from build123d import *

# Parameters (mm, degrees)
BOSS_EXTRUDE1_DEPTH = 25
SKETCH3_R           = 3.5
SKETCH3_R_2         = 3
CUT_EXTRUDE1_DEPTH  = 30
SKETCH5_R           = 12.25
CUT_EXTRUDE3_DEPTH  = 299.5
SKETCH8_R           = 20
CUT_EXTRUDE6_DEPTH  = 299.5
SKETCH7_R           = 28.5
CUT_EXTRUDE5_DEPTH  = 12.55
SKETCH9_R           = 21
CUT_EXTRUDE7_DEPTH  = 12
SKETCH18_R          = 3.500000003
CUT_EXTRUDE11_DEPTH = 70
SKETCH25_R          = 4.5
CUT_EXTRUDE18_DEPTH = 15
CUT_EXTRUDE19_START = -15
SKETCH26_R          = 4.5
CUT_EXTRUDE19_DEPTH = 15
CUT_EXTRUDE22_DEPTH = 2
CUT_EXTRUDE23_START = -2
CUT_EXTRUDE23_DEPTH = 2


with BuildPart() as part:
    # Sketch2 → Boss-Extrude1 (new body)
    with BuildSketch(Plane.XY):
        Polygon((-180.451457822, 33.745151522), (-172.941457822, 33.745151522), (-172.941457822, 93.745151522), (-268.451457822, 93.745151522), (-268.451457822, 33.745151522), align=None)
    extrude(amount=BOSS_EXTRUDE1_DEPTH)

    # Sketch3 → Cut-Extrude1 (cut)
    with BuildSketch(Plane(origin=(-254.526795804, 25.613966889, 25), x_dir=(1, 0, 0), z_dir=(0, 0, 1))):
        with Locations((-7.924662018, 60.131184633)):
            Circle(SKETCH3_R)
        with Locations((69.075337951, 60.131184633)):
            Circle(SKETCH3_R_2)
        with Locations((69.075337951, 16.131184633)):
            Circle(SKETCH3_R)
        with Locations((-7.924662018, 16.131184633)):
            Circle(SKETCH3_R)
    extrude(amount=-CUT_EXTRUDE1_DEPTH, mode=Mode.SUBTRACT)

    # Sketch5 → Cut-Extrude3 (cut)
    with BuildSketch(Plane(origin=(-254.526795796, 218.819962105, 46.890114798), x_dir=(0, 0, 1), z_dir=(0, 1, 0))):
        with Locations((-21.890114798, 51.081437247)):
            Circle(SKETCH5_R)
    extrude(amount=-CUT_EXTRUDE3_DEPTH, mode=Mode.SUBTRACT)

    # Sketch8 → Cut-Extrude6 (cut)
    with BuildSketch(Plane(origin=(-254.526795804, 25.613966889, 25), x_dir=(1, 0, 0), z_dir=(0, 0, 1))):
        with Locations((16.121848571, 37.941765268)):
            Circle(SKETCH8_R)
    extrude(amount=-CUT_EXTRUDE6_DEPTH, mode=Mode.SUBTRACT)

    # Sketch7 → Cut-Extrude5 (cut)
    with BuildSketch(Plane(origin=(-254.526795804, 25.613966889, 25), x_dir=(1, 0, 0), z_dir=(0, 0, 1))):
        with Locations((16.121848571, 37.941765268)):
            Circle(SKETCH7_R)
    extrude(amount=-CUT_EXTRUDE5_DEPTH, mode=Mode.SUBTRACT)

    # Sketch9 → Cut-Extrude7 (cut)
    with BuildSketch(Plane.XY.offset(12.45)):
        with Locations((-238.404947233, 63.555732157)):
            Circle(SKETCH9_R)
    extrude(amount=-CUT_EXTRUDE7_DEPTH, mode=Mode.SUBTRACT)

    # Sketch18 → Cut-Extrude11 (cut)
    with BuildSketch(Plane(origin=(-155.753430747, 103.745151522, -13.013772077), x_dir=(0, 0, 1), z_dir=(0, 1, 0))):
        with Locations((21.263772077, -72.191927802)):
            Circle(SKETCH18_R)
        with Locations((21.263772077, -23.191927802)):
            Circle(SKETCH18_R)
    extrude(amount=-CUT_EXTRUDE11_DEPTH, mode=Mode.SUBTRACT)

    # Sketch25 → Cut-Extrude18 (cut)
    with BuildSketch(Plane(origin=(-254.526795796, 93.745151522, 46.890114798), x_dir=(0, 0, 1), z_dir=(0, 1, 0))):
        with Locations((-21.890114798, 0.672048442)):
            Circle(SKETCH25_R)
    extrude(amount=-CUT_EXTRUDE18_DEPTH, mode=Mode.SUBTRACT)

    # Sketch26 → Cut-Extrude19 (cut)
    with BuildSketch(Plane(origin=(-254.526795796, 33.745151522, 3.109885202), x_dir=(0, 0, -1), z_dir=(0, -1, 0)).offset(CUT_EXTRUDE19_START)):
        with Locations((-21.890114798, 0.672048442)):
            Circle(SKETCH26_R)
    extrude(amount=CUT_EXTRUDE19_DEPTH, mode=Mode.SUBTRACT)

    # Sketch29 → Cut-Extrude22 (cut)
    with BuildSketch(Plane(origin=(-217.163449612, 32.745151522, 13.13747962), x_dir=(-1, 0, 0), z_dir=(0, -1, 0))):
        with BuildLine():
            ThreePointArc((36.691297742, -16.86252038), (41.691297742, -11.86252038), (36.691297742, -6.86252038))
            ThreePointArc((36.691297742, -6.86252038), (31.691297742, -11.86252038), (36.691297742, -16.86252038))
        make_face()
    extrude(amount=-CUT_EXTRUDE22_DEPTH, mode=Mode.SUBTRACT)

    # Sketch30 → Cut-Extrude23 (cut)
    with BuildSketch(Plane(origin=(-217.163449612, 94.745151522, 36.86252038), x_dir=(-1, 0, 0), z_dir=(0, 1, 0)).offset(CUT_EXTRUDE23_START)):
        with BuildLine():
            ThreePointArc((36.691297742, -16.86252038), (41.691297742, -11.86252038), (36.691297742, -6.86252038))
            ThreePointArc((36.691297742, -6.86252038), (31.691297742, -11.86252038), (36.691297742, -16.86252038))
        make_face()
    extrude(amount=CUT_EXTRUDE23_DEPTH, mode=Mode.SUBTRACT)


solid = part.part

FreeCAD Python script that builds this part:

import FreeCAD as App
import Part
import Sketcher

V = App.Vector
Q = App.Units.Quantity

doc = App.newDocument("Part")
body = doc.addObject("PartDesign::Body", "Body")

sketch1 = body.newObject("Sketcher::SketchObject", "Sketch")
sketch1.AttachmentSupport = (doc.getObject("XY_Plane"), [""])
sketch1.MapMode = "FlatFace"
sketch1.addGeometry(Part.LineSegment(V(-173, 34, 0), V(-173, 94, 0)), False)
sketch1.addGeometry(Part.LineSegment(V(-173, 94, 0), V(-268, 94, 0)), False)
sketch1.addGeometry(Part.LineSegment(V(-268, 94, 0), V(-268, 34, 0)), False)
sketch1.addGeometry(Part.LineSegment(V(-268, 34, 0), V(-173, 34, 0)), False)
sketch1.addConstraint(Sketcher.Constraint("Coincident", 0, 2, 1, 1))
sketch1.addConstraint(Sketcher.Constraint("Coincident", 1, 2, 2, 1))
sketch1.addConstraint(Sketcher.Constraint("Coincident", 2, 2, 3, 1))
sketch1.addConstraint(Sketcher.Constraint("Coincident", 3, 2, 0, 1))
sketch1.addConstraint(Sketcher.Constraint("Vertical", 0))
sketch1.addConstraint(Sketcher.Constraint("Horizontal", 1))
sketch1.addConstraint(Sketcher.Constraint("Vertical", 2))
sketch1.addConstraint(Sketcher.Constraint("Horizontal", 3))
sketch1.addConstraint(Sketcher.Constraint("DistanceY", 0, 1, 0, 2, Q("60 mm")))
sketch1.addConstraint(Sketcher.Constraint("DistanceX", 1, 2, 1, 1, Q("95.51 mm")))
sketch1.addConstraint(Sketcher.Constraint("DistanceY", -1, 1, 0, 2, Q("93.745152 mm")))
sketch1.addConstraint(Sketcher.Constraint("DistanceX", 0, 2, -1, 1, Q("172.941458 mm")))
pad1 = body.newObject("PartDesign::Pad", "Pad")
pad1.Profile = sketch1
pad1.Length = 25

sketch2 = body.newObject("Sketcher::SketchObject", "Sketch001")
sketch2.AttachmentSupport = (doc.getObject("XY_Plane"), [""])
sketch2.MapMode = "FlatFace"
sketch2.AttachmentOffset = App.Placement(V(0, 0, 25), App.Rotation())
sketch2.addGeometry(Part.Circle(V(-262.5, 85.7, 0), V(0, 0, 1), 3.5), False)
sketch2.addGeometry(Part.Circle(V(-185.5, 85.7, 0), V(0, 0, 1), 3), False)
sketch2.addGeometry(Part.Circle(V(-185.5, 41.7, 0), V(0, 0, 1), 3.5), False)
sketch2.addGeometry(Part.Circle(V(-262.5, 41.7, 0), V(0, 0, 1), 3.5), False)
sketch2.addConstraint(Sketcher.Constraint("Equal", 0, 2))
sketch2.addConstraint(Sketcher.Constraint("Equal", 2, 3))
sketch2.addConstraint(Sketcher.Constraint("Horizontal", 0, 3, 1, 3))
sketch2.addConstraint(Sketcher.Constraint("Horizontal", 2, 3, 3, 3))
sketch2.addConstraint(Sketcher.Constraint("Vertical", 1, 3, 2, 3))
sketch2.addConstraint(Sketcher.Constraint("Vertical", 0, 3, 3, 3))
sketch2.addConstraint(Sketcher.Constraint("Diameter", 0, Q("7 mm")))
sketch2.addConstraint(Sketcher.Constraint("Diameter", 1, Q("6 mm")))
sketch2.addConstraint(Sketcher.Constraint("DistanceX", 0, 3, 1, 3, Q("77 mm")))
sketch2.addConstraint(Sketcher.Constraint("DistanceY", 2, 3, 1, 3, Q("44 mm")))
sketch2.addConstraint(Sketcher.Constraint("DistanceY", -1, 1, 0, 3, Q("85.745152 mm")))
sketch2.addConstraint(Sketcher.Constraint("DistanceX", 0, 3, -1, 1, Q("262.451458 mm")))
pocket1 = body.newObject("PartDesign::Pocket", "Pocket")
pocket1.Profile = sketch2
pocket1.Length = 30

sketch3 = body.newObject("Sketcher::SketchObject", "Sketch002")
sketch3.AttachmentSupport = (doc.getObject("XZ_Plane"), [""])
sketch3.MapMode = "FlatFace"
sketch3.AttachmentOffset = App.Placement(V(0, 0, -218.819962), App.Rotation())
sketch3.addGeometry(Part.Circle(V(-203, 25, 0), V(0, 0, 1), 12), False)
sketch3.addConstraint(Sketcher.Constraint("Diameter", 0, Q("24.5 mm")))
sketch3.addConstraint(Sketcher.Constraint("DistanceY", -1, 1, 0, 3, Q("25 mm")))
sketch3.addConstraint(Sketcher.Constraint("DistanceX", 0, 3, -1, 1, Q("203.445359 mm")))
pocket2 = body.newObject("PartDesign::Pocket", "Pocket001")
pocket2.Profile = sketch3
pocket2.Length = 299.5
pocket2.Reversed = True

sketch4 = body.newObject("Sketcher::SketchObject", "Sketch003")
sketch4.AttachmentSupport = (doc.getObject("XY_Plane"), [""])
sketch4.MapMode = "FlatFace"
sketch4.AttachmentOffset = App.Placement(V(0, 0, 25), App.Rotation())
sketch4.addGeometry(Part.Circle(V(-238, 64, 0), V(0, 0, 1), 20), False)
sketch4.addConstraint(Sketcher.Constraint("Diameter", 0, Q("40 mm")))
sketch4.addConstraint(Sketcher.Constraint("DistanceX", 0, 3, -1, 1, Q("238.404947 mm")))
sketch4.addConstraint(Sketcher.Constraint("DistanceY", -1, 1, 0, 3, Q("63.555732 mm")))
pocket3 = body.newObject("PartDesign::Pocket", "Pocket002")
pocket3.Profile = sketch4
pocket3.Length = 299.5

sketch5 = body.newObject("Sketcher::SketchObject", "Sketch004")
sketch5.AttachmentSupport = (doc.getObject("XY_Plane"), [""])
sketch5.MapMode = "FlatFace"
sketch5.AttachmentOffset = App.Placement(V(0, 0, 25), App.Rotation())
sketch5.addGeometry(Part.Circle(V(-238, 64, 0), V(0, 0, 1), 28), False)
sketch5.addConstraint(Sketcher.Constraint("Diameter", 0, Q("57 mm")))
sketch5.addConstraint(Sketcher.Constraint("DistanceX", 0, 3, -1, 1, Q("238.404947 mm")))
sketch5.addConstraint(Sketcher.Constraint("DistanceY", -1, 1, 0, 3, Q("63.555732 mm")))
pocket4 = body.newObject("PartDesign::Pocket", "Pocket003")
pocket4.Profile = sketch5
pocket4.Length = 12.55

sketch6 = body.newObject("Sketcher::SketchObject", "Sketch005")
sketch6.AttachmentSupport = (doc.getObject("XY_Plane"), [""])
sketch6.MapMode = "FlatFace"
sketch6.AttachmentOffset = App.Placement(V(0, 0, 12.45), App.Rotation())
sketch6.addGeometry(Part.Circle(V(-238, 64, 0), V(0, 0, 1), 21), False)
sketch6.addConstraint(Sketcher.Constraint("Diameter", 0, Q("42 mm")))
sketch6.addConstraint(Sketcher.Constraint("DistanceX", 0, 3, -1, 1, Q("238.404947 mm")))
sketch6.addConstraint(Sketcher.Constraint("DistanceY", -1, 1, 0, 3, Q("63.555732 mm")))
pocket5 = body.newObject("PartDesign::Pocket", "Pocket004")
pocket5.Profile = sketch6
pocket5.Length = 12

sketch7 = body.newObject("Sketcher::SketchObject", "Sketch006")
sketch7.AttachmentSupport = (doc.getObject("XZ_Plane"), [""])
sketch7.MapMode = "FlatFace"
sketch7.AttachmentOffset = App.Placement(V(0, 0, -103.745152), App.Rotation())
sketch7.addGeometry(Part.Circle(V(-227.9, 8.2, 0), V(0, 0, 1), 3.5), False)
sketch7.addGeometry(Part.Circle(V(-178.9, 8.2, 0), V(0, 0, 1), 3.5), False)
sketch7.addConstraint(Sketcher.Constraint("Equal", 0, 1))
sketch7.addConstraint(Sketcher.Constraint("Horizontal", 0, 3, 1, 3))
sketch7.addConstraint(Sketcher.Constraint("Diameter", 0, Q("7 mm")))
sketch7.addConstraint(Sketcher.Constraint("DistanceX", 0, 3, 1, 3, Q("49 mm")))
sketch7.addConstraint(Sketcher.Constraint("DistanceY", -1, 1, 0, 3, Q("8.25 mm")))
sketch7.addConstraint(Sketcher.Constraint("DistanceX", 0, 3, -1, 1, Q("227.945359 mm")))
pocket6 = body.newObject("PartDesign::Pocket", "Pocket005")
pocket6.Profile = sketch7
pocket6.Length = 70
pocket6.Reversed = True

sketch8 = body.newObject("Sketcher::SketchObject", "Sketch007")
sketch8.AttachmentSupport = (doc.getObject("XZ_Plane"), [""])
sketch8.MapMode = "FlatFace"
sketch8.AttachmentOffset = App.Placement(V(0, 0, -93.745152), App.Rotation())
sketch8.addGeometry(Part.Circle(V(-253.9, 25, 0), V(0, 0, 1), 4.5), False)
sketch8.addConstraint(Sketcher.Constraint("Diameter", 0, Q("9 mm")))
sketch8.addConstraint(Sketcher.Constraint("DistanceY", -1, 1, 0, 3, Q("25 mm")))
sketch8.addConstraint(Sketcher.Constraint("DistanceX", 0, 3, -1, 1, Q("253.854747 mm")))
pocket7 = body.newObject("PartDesign::Pocket", "Pocket006")
pocket7.Profile = sketch8
pocket7.Length = 15
pocket7.Reversed = True

sketch9 = body.newObject("Sketcher::SketchObject", "Sketch008")
sketch9.AttachmentSupport = (doc.getObject("XZ_Plane"), [""])
sketch9.MapMode = "FlatFace"
sketch9.AttachmentOffset = App.Placement(V(0, 0, -48.745152), App.Rotation())
sketch9.addGeometry(Part.Circle(V(-253.9, 25, 0), V(0, 0, 1), 4.5), False)
sketch9.addConstraint(Sketcher.Constraint("Diameter", 0, Q("9 mm")))
sketch9.addConstraint(Sketcher.Constraint("DistanceY", -1, 1, 0, 3, Q("25 mm")))
sketch9.addConstraint(Sketcher.Constraint("DistanceX", 0, 3, -1, 1, Q("253.854747 mm")))
pocket8 = body.newObject("PartDesign::Pocket", "Pocket007")
pocket8.Profile = sketch9
pocket8.Length = 15
pocket8.Reversed = True

sketch10 = body.newObject("Sketcher::SketchObject", "Sketch009")
sketch10.AttachmentSupport = (doc.getObject("XZ_Plane"), [""])
sketch10.MapMode = "FlatFace"
sketch10.AttachmentOffset = App.Placement(V(0, 0, -32.745152), App.Rotation())
sketch10.addGeometry(Part.Circle(V(-254, 25, 0), V(0, 0, 1), 5), False)
sketch10.addConstraint(Sketcher.Constraint("Diameter", 0, Q("10 mm")))
sketch10.addConstraint(Sketcher.Constraint("DistanceY", -1, 1, 0, 3, Q("25 mm")))
sketch10.addConstraint(Sketcher.Constraint("DistanceX", 0, 3, -1, 1, Q("253.854747 mm")))
pocket9 = body.newObject("PartDesign::Pocket", "Pocket008")
pocket9.Profile = sketch10
pocket9.Length = 2

sketch11 = body.newObject("Sketcher::SketchObject", "Sketch010")
sketch11.AttachmentSupport = (doc.getObject("XZ_Plane"), [""])
sketch11.MapMode = "FlatFace"
sketch11.AttachmentOffset = App.Placement(V(0, 0, -92.745152), App.Rotation())
sketch11.addGeometry(Part.Circle(V(-254, 25, 0), V(0, 0, 1), 5), False)
sketch11.addConstraint(Sketcher.Constraint("Diameter", 0, Q("10 mm")))
sketch11.addConstraint(Sketcher.Constraint("DistanceY", -1, 1, 0, 3, Q("25 mm")))
sketch11.addConstraint(Sketcher.Constraint("DistanceX", 0, 3, -1, 1, Q("253.854747 mm")))
pocket10 = body.newObject("PartDesign::Pocket", "Pocket009")
pocket10.Profile = sketch11
pocket10.Length = 2

doc.recompute()
